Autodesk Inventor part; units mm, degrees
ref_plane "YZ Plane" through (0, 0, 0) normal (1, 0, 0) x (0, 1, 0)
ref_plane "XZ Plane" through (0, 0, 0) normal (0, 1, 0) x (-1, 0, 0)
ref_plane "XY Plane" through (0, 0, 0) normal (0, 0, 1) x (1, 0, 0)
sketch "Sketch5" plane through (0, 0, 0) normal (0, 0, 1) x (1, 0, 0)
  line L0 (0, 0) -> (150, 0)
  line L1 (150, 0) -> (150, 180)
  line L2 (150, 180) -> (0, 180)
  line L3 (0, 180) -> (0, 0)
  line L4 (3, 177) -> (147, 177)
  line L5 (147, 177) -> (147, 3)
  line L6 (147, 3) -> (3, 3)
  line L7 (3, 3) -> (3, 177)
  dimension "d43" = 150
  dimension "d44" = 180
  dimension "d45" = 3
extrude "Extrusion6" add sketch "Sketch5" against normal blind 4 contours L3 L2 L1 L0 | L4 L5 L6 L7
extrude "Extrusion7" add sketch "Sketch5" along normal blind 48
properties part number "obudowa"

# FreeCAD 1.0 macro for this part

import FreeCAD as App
import Part
import Sketcher
from FreeCAD import Vector
Q = App.Units.Quantity

doc = App.newDocument("Part")
body = doc.addObject("PartDesign::Body", "Body")

sketch1 = body.newObject("Sketcher::SketchObject", "Sketch")
sketch1.AttachmentSupport = (doc.getObject("XY_Plane"), [""])
sketch1.MapMode = "FlatFace"
sketch1.addGeometry(Part.LineSegment(Vector(0, 180, 0), Vector(0, 0, 0)), False)
sketch1.addGeometry(Part.LineSegment(Vector(0, 0, 0), Vector(150, 0, 0)), False)
sketch1.addGeometry(Part.LineSegment(Vector(150, 0, 0), Vector(150, 180, 0)), False)
sketch1.addGeometry(Part.LineSegment(Vector(150, 180, 0), Vector(0, 180, 0)), False)
sketch1.addConstraint(Sketcher.Constraint("Coincident", 0, 2, 1, 1))
sketch1.addConstraint(Sketcher.Constraint("Coincident", 1, 2, 2, 1))
sketch1.addConstraint(Sketcher.Constraint("Coincident", 2, 2, 3, 1))
sketch1.addConstraint(Sketcher.Constraint("Coincident", 3, 2, 0, 1))
sketch1.addConstraint(Sketcher.Constraint("Vertical", 0))
sketch1.addConstraint(Sketcher.Constraint("Horizontal", 1))
sketch1.addConstraint(Sketcher.Constraint("Vertical", 2))
sketch1.addConstraint(Sketcher.Constraint("Horizontal", 3))
sketch1.addConstraint(Sketcher.Constraint("Coincident", 0, 2, -1, 1))
sketch1.addConstraint(Sketcher.Constraint("DistanceX", 1, 1, 1, 2, Q("150 mm")))
sketch1.addConstraint(Sketcher.Constraint("DistanceY", 0, 2, 0, 1, Q("180 mm")))
pad1 = body.newObject("PartDesign::Pad", "Pad")
pad1.Profile = sketch1
pad1.Length = 4
pad1.Reversed = True

sketch2 = body.newObject("Sketcher::SketchObject", "Sketch001")
sketch2.AttachmentSupport = (doc.getObject("XY_Plane"), [""])
sketch2.MapMode = "FlatFace"
sketch2.addGeometry(Part.LineSegment(Vector(0, 180, 0), Vector(0, 0, 0)), False)
sketch2.addGeometry(Part.LineSegment(Vector(0, 0, 0), Vector(150, 0, 0)), False)
sketch2.addGeometry(Part.LineSegment(Vector(150, 0, 0), Vector(150, 180, 0)), False)
sketch2.addGeometry(Part.LineSegment(Vector(150, 180, 0), Vector(0, 180, 0)), False)
sketch2.addGeometry(Part.LineSegment(Vector(3, 3, 0), Vector(3, 177, 0)), False)
sketch2.addGeometry(Part.LineSegment(Vector(3, 177, 0), Vector(147, 177, 0)), False)
sketch2.addGeometry(Part.LineSegment(Vector(147, 177, 0), Vector(147, 3, 0)), False)
sketch2.addGeometry(Part.LineSegment(Vector(147, 3, 0), Vector(3, 3, 0)), False)
sketch2.addConstraint(Sketcher.Constraint("Coincident", 0, 2, 1, 1))
sketch2.addConstraint(Sketcher.Constraint("Coincident", 1, 2, 2, 1))
sketch2.addConstraint(Sketcher.Constraint("Coincident", 2, 2, 3, 1))
sketch2.addConstraint(Sketcher.Constraint("Coincident", 3, 2, 0, 1))
sketch2.addConstraint(Sketcher.Constraint("Coincident", 4, 2, 5, 1))
sketch2.addConstraint(Sketcher.Constraint("Coincident", 5, 2, 6, 1))
sketch2.addConstraint(Sketcher.Constraint("Coincident", 6, 2, 7, 1))
sketch2.addConstraint(Sketcher.Constraint("Coincident", 7, 2, 4, 1))
sketch2.addConstraint(Sketcher.Constraint("Vertical", 0))
sketch2.addConstraint(Sketcher.Constraint("Horizontal", 1))
sketch2.addConstraint(Sketcher.Constraint("Vertical", 2))
sketch2.addConstraint(Sketcher.Constraint("Horizontal", 3))
sketch2.addConstraint(Sketcher.Constraint("Vertical", 4))
sketch2.addConstraint(Sketcher.Constraint("Horizontal", 5))
sketch2.addConstraint(Sketcher.Constraint("Vertical", 6))
sketch2.addConstraint(Sketcher.Constraint("Horizontal", 7))
sketch2.addConstraint(Sketcher.Constraint("Coincident", 0, 2, -1, 1))
sketch2.addConstraint(Sketcher.Constraint("DistanceX", 1, 1, 1, 2, Q("150 mm")))
sketch2.addConstraint(Sketcher.Constraint("DistanceY", 0, 2, 0, 1, Q("180 mm")))
sketch2.addConstraint(Sketcher.Constraint("DistanceX", -1, 1, 4, 2, Q("3 mm")))
sketch2.addConstraint(Sketcher.Constraint("DistanceY", -1, 1, 6, 2, Q("3 mm")))
sketch2.addConstraint(Sketcher.Constraint("DistanceY", 4, 2, 3, 2, Q("3 mm")))
sketch2.addConstraint(Sketcher.Constraint("DistanceX", 5, 2, 2, 2, Q("3 mm")))
pad2 = body.newObject("PartDesign::Pad", "Pad001")
pad2.Profile = sketch2
pad2.Length = 48

doc.recompute()
